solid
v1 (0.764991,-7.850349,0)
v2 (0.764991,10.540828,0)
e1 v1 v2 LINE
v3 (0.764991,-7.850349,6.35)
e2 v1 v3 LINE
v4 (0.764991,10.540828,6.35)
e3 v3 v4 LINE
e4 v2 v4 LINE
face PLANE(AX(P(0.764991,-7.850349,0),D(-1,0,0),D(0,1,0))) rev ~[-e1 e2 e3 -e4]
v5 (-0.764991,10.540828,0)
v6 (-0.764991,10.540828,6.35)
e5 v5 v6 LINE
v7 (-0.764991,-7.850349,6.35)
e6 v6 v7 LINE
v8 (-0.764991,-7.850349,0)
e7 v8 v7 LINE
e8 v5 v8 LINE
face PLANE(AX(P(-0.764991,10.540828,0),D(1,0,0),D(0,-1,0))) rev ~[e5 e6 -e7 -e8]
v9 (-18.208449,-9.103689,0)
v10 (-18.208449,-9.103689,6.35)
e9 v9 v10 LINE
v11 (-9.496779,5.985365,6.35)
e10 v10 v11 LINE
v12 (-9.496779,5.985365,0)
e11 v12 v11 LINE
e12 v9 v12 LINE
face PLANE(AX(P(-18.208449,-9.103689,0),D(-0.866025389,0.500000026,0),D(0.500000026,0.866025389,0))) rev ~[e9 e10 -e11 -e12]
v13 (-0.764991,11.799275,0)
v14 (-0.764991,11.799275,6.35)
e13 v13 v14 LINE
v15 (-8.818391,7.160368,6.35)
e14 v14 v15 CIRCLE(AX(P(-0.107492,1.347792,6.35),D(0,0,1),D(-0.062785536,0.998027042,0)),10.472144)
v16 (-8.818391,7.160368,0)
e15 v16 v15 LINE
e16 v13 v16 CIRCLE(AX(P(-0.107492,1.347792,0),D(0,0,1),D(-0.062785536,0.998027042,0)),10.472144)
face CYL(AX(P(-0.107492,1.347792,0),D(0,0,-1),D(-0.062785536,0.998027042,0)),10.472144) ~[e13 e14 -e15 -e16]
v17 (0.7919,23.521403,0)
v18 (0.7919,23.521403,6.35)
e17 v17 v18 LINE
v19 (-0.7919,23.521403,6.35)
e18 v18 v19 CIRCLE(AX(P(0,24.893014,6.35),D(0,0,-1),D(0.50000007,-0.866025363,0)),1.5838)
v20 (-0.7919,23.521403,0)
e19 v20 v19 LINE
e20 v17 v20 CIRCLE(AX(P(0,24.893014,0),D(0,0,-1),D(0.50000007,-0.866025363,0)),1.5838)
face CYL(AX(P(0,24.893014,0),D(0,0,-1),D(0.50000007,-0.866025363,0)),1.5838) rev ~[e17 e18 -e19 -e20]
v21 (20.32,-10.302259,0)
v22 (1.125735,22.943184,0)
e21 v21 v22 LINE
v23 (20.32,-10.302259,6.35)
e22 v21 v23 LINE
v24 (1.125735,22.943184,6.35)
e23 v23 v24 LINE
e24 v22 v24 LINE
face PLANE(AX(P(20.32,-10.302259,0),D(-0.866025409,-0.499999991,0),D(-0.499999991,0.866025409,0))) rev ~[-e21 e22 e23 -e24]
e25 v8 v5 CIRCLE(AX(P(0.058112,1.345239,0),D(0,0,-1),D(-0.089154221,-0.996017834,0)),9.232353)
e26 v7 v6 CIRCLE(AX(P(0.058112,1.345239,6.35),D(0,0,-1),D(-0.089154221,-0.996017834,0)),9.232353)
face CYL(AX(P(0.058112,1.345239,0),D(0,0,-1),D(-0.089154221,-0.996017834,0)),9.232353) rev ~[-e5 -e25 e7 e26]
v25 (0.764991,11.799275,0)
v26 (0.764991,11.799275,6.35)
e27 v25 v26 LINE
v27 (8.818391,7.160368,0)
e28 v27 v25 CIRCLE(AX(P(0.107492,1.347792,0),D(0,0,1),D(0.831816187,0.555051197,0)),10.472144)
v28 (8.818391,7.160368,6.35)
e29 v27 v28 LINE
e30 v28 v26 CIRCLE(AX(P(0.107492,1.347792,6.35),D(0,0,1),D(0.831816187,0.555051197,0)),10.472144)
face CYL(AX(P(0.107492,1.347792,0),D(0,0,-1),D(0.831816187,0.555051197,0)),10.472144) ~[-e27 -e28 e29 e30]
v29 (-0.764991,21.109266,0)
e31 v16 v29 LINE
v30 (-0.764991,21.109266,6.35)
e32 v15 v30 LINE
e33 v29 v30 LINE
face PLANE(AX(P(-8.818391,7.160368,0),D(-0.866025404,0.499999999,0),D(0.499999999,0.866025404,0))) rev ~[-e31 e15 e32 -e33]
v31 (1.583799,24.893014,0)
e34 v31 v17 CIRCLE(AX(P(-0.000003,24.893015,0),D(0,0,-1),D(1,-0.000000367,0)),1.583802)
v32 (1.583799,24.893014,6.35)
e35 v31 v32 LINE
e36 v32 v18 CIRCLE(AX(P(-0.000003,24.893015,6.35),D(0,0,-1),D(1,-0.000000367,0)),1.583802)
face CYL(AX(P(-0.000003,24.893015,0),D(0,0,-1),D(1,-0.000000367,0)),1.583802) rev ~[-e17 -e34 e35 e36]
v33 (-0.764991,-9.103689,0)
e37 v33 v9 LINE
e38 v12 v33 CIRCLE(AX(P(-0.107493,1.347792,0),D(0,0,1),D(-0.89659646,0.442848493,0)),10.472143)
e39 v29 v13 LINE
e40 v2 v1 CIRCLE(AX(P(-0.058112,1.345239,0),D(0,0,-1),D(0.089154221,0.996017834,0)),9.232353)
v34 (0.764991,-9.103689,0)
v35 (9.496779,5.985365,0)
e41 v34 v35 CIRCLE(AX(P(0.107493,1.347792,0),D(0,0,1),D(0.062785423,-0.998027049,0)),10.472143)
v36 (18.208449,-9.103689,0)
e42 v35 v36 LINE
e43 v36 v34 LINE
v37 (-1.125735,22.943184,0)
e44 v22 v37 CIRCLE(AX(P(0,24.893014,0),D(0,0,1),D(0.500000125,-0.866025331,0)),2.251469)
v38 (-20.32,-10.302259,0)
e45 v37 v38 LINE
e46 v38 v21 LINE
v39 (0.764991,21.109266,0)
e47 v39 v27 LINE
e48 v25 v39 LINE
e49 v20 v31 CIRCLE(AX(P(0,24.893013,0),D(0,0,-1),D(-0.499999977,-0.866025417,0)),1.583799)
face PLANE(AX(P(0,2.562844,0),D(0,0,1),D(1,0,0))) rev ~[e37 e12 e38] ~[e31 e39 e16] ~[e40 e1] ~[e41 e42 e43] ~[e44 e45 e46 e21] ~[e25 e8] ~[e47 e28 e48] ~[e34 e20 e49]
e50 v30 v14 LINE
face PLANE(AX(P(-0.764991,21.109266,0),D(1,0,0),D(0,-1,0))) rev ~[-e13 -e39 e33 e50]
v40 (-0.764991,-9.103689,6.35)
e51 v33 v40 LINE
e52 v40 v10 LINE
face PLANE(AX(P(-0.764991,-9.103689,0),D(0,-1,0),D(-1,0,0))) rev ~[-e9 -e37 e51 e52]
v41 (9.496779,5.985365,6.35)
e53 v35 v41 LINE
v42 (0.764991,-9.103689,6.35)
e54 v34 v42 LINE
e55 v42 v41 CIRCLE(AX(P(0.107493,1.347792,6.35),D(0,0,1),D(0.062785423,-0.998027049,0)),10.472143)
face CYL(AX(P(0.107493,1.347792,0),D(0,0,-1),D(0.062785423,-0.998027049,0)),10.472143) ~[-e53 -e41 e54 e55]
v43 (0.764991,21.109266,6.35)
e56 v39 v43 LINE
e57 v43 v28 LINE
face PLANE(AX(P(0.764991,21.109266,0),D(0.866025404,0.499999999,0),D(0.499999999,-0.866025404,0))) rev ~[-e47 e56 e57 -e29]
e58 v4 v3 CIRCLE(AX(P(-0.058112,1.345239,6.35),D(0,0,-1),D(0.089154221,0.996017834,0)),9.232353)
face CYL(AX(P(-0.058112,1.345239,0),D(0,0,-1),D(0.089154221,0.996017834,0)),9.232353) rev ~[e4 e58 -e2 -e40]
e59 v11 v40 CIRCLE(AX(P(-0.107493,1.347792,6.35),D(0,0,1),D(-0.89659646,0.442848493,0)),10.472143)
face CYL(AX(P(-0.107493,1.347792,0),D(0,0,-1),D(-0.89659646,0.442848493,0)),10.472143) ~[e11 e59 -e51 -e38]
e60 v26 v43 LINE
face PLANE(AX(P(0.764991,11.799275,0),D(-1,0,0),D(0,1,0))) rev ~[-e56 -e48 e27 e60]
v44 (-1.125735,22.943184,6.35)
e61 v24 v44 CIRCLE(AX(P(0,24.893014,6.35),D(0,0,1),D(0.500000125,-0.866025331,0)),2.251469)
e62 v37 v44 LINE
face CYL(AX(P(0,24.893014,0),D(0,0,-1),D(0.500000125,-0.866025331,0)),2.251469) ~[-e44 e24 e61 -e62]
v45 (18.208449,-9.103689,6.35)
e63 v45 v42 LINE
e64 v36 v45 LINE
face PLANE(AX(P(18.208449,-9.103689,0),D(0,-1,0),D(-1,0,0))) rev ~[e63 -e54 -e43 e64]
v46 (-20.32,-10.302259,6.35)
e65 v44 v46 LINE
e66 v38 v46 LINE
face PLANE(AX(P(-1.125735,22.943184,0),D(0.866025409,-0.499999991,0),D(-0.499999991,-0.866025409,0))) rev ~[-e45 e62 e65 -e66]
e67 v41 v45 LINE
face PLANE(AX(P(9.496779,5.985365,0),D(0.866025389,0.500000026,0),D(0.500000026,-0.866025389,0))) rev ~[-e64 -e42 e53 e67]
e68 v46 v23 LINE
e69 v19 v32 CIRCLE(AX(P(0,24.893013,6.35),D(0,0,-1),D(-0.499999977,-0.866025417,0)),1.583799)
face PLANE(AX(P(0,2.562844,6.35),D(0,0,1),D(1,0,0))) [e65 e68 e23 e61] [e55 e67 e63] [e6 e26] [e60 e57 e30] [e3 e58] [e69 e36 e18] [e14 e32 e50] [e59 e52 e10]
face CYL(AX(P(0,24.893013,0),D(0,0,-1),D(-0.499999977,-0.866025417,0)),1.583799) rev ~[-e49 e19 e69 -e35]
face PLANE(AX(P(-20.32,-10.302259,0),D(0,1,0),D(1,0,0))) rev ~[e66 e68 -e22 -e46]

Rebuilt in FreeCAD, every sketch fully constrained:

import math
import FreeCAD as App
import Part
import Sketcher

V = App.Vector
Q = App.Units.Quantity

doc = App.newDocument("Part")
body = doc.addObject("PartDesign::Body", "Body")

sketch1 = body.newObject("Sketcher::SketchObject", "Sketch")
sketch1.AttachmentSupport = (doc.getObject("XY_Plane"), [""])
sketch1.MapMode = "FlatFace"
sketch1.addGeometry([
    Part.LineSegment(V(-1.1, 22.9, 0), V(-20.3, -10.3, 0)),
    Part.LineSegment(V(-20.3, -10.3, 0), V(20.3, -10.3, 0)),
    Part.LineSegment(V(20.3, -10.3, 0), V(1.1, 22.9, 0)),
    Part.ArcOfCircle(Part.Circle(V(0, 24.9, 0), V(0, 0, 1), 2.3), math.radians(-60), math.radians(240)),
    Part.ArcOfCircle(Part.Circle(V(-0.1, 1.3, 0), V(0, 0, 1), 10.5), math.radians(154), math.radians(266)),
    Part.LineSegment(V(-0.8, -9.1, 0), V(-18.2, -9.1, 0)),
    Part.LineSegment(V(-18.2, -9.1, 0), V(-9.5, 6, 0)),
    Part.ArcOfCircle(Part.Circle(V(0.1, 1.3, 0), V(0, 0, 1), 9.2), math.radians(95), math.radians(265)),
    Part.LineSegment(V(-0.8, 10.5, 0), V(-0.8, -7.9, 0)),
    Part.LineSegment(V(18.2, -9.1, 0), V(0.8, -9.1, 0)),
    Part.ArcOfCircle(Part.Circle(V(0.1, 1.3, 0), V(0, 0, 1), 10.5), math.radians(-86), math.radians(26)),
    Part.LineSegment(V(9.5, 6, 0), V(18.2, -9.1, 0)),
    Part.ArcOfCircle(Part.Circle(V(-0.1, 1.3, 0), V(0, 0, 1), 9.2), math.radians(-85), math.radians(85)),
    Part.LineSegment(V(0.8, -7.9, 0), V(0.8, 10.5, 0)),
    Part.LineSegment(V(-8.8, 7.2, 0), V(-0.8, 21.1, 0)),
    Part.LineSegment(V(-0.8, 21.1, 0), V(-0.8, 11.8, 0)),
    Part.ArcOfCircle(Part.Circle(V(-0.1, 1.3, 0), V(0, 0, 1), 10.5), math.radians(94), math.radians(146)),
    Part.ArcOfCircle(Part.Circle(V(0, 24.9, 0), V(0, 0, 1), 1.6), math.radians(0), math.radians(240)),
    Part.ArcOfCircle(Part.Circle(V(0, 24.9, 0), V(0, 0, 1), 1.6), math.radians(-60), math.radians(0)),
    Part.ArcOfCircle(Part.Circle(V(0, 24.9, 0), V(0, 0, 1), 1.6), math.radians(-120), math.radians(-60)),
    Part.LineSegment(V(0.8, 21.1, 0), V(8.8, 7.2, 0)),
    Part.ArcOfCircle(Part.Circle(V(0.1, 1.3, 0), V(0, 0, 1), 10.5), math.radians(34), math.radians(86)),
    Part.LineSegment(V(0.8, 11.8, 0), V(0.8, 21.1, 0)),
], False)
sketch1.addConstraint([
    Sketcher.Constraint("Coincident", 0, 2, 1, 1),
    Sketcher.Constraint("Coincident", 1, 2, 2, 1),
    Sketcher.Constraint("Coincident", 2, 2, 3, 1),
    Sketcher.Constraint("Coincident", 3, 2, 0, 1),
    Sketcher.Constraint("Coincident", 4, 2, 5, 1),
    Sketcher.Constraint("Coincident", 5, 2, 6, 1),
    Sketcher.Constraint("Coincident", 6, 2, 4, 1),
    Sketcher.Constraint("Coincident", 7, 1, 8, 1),
    Sketcher.Constraint("Coincident", 8, 2, 7, 2),
    Sketcher.Constraint("Coincident", 9, 2, 10, 1),
    Sketcher.Constraint("Coincident", 10, 2, 11, 1),
    Sketcher.Constraint("Coincident", 11, 2, 9, 1),
    Sketcher.Constraint("Coincident", 12, 1, 13, 1),
    Sketcher.Constraint("Coincident", 13, 2, 12, 2),
    Sketcher.Constraint("Coincident", 14, 2, 15, 1),
    Sketcher.Constraint("Coincident", 15, 2, 16, 1),
    Sketcher.Constraint("Coincident", 16, 2, 14, 1),
    Sketcher.Constraint("Tangent", 17, 1, 18, 2),
    Sketcher.Constraint("Tangent", 18, 1, 19, 2),
    Sketcher.Constraint("Tangent", 19, 1, 17, 2),
    Sketcher.Constraint("Coincident", 20, 2, 21, 1),
    Sketcher.Constraint("Coincident", 21, 2, 22, 1),
    Sketcher.Constraint("Coincident", 22, 2, 20, 1),
    Sketcher.Constraint("Horizontal", 1),
    Sketcher.Constraint("Horizontal", 5),
    Sketcher.Constraint("Vertical", 8),
    Sketcher.Constraint("Horizontal", 9),
    Sketcher.Constraint("Vertical", 13),
    Sketcher.Constraint("Vertical", 15),
    Sketcher.Constraint("Vertical", 22),
    Sketcher.Constraint("Coincident", 16, 3, 4, 3),
    Sketcher.Constraint("Coincident", 17, 3, 3, 3),
    Sketcher.Constraint("Coincident", 21, 3, 10, 3),
    Sketcher.Constraint("Equal", 4, 10),
    Sketcher.Constraint("Equal", 7, 12),
    Sketcher.Constraint("Equal", 10, 16),
    Sketcher.Constraint("Equal", 16, 21),
    Sketcher.Constraint("Symmetric", 4, 3, 10, 3, -2),
    Sketcher.Constraint("Symmetric", 7, 3, 12, 3, -2),
    Sketcher.Constraint("Symmetric", 2, 2, 3, 2, -2),
    Sketcher.Constraint("Symmetric", 5, 2, 11, 2, -2),
    Sketcher.Constraint("Symmetric", 14, 2, 22, 2, -2),
    Sketcher.Constraint("Parallel", 0, 6),
    Sketcher.Constraint("Parallel", 2, 11),
    Sketcher.Constraint("Parallel", 6, 14),
    Sketcher.Constraint("Parallel", 11, 20),
    Sketcher.Constraint("Horizontal", 6, 2, 10, 2),
    Sketcher.Constraint("Horizontal", 8, 2, 12, 1),
    Sketcher.Constraint("Horizontal", 19, 3, 17, 1),
    Sketcher.Constraint("Horizontal", 18, 1, 19, 1),
    Sketcher.Constraint("Vertical", 4, 2, 7, 1),
    Sketcher.Constraint("Vertical", 8, 2, 14, 2),
    Sketcher.Constraint("DistanceX", 1, 1, 1, 2, Q("1.6 in")),
    Sketcher.Constraint("Angle", 0, Q("-119.999999 deg")),
    Sketcher.Constraint("Radius", 17, 1.583799),
    Sketcher.Constraint("Radius", 3, 2.251469),
    Sketcher.Constraint("Radius", 4, 10.472143),
    Sketcher.Constraint("Radius", 7, 9.232353),
    Sketcher.Constraint("Distance", 14, 16.1068),
    Sketcher.Constraint("DistanceX", 5, 2, 5, 1, 17.443458),
    Sketcher.Constraint("DistanceY", 15, 2, 15, 1, 9.309991),
    Sketcher.Constraint("DistanceX", -1, 1, 18, 1, 0.7919),
    Sketcher.Constraint("DistanceY", 0, 2, 12, 3, 11.647498),
    Sketcher.Constraint("Distance", 0, 38.388531),
    Sketcher.Constraint("DistanceY", 8, 2, 8, 1, 18.391177),
    Sketcher.Constraint("DistanceY", -1, 1, 7, 3, 1.345239),
    Sketcher.Constraint("DistanceX", 16, 3, -1, 1, 0.107492),
    Sketcher.Constraint("DistanceY", -1, 1, 16, 3, 1.347792),
])
pad1 = body.newObject("PartDesign::Pad", "Pad")
pad1.Profile = sketch1
pad1.Length = Q("0.25 in")

doc.recompute()
